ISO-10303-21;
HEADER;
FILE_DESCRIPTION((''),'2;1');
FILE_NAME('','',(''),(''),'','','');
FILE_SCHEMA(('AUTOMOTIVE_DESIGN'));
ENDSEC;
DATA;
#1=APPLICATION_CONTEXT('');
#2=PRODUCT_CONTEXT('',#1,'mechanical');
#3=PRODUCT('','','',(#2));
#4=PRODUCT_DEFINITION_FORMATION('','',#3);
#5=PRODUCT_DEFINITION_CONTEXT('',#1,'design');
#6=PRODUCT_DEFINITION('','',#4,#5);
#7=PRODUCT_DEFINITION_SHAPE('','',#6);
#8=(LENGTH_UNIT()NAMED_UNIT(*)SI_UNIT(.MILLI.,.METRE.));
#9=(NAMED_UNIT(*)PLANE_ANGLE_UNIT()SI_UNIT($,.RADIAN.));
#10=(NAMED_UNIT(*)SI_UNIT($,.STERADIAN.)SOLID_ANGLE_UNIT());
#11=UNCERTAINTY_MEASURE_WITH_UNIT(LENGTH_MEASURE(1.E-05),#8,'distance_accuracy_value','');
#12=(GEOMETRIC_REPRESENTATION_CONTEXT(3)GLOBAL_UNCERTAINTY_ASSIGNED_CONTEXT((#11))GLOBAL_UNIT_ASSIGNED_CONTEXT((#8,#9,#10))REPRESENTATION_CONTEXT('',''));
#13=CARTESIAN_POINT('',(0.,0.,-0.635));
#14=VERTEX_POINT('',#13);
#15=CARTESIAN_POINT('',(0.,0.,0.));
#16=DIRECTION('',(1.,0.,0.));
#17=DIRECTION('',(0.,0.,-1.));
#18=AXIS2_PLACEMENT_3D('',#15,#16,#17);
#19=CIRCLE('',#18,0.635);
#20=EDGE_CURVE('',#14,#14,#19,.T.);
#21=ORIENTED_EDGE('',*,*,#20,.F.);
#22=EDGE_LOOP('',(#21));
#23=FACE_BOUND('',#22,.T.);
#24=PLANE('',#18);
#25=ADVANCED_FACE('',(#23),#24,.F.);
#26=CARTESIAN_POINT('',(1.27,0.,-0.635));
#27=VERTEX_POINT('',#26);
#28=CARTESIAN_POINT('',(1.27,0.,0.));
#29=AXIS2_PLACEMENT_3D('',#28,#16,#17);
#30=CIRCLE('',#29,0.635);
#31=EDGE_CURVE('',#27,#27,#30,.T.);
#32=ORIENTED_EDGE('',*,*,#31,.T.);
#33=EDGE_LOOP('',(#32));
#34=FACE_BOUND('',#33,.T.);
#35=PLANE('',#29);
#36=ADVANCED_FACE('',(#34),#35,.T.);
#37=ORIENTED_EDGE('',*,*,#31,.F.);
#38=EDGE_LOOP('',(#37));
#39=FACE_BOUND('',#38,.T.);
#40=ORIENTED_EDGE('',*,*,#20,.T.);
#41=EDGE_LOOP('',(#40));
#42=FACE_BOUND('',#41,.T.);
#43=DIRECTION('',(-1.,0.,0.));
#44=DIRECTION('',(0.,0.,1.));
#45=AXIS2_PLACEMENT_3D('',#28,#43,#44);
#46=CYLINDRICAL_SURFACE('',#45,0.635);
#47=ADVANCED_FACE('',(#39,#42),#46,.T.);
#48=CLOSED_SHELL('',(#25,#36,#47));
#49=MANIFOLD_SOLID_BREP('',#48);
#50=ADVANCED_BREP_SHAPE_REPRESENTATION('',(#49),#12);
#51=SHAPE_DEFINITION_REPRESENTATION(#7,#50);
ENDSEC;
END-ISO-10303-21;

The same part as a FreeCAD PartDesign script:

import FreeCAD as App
import Part
import Sketcher
from FreeCAD import Vector
Q = App.Units.Quantity

doc = App.newDocument("Part")
body = doc.addObject("PartDesign::Body", "Body")

# Sketch on YZ plane
sketch1 = body.newObject("Sketcher::SketchObject", "Sketch")
sketch1.AttachmentSupport = (doc.getObject("YZ_Plane"), [""])
sketch1.MapMode = "FlatFace"
sketch1.addGeometry(Part.Circle(Vector(0, 0, 0), Vector(0, 0, 1), 0.6), False)
sketch1.addConstraint(Sketcher.Constraint("Coincident", 0, 3, -1, 1))
sketch1.addConstraint(Sketcher.Constraint("Diameter", 0, Q("0.05 in")))
pad1 = body.newObject("PartDesign::Pad", "Pad")
pad1.Profile = sketch1
pad1.Length = Q("0.05 in")

doc.recompute()
